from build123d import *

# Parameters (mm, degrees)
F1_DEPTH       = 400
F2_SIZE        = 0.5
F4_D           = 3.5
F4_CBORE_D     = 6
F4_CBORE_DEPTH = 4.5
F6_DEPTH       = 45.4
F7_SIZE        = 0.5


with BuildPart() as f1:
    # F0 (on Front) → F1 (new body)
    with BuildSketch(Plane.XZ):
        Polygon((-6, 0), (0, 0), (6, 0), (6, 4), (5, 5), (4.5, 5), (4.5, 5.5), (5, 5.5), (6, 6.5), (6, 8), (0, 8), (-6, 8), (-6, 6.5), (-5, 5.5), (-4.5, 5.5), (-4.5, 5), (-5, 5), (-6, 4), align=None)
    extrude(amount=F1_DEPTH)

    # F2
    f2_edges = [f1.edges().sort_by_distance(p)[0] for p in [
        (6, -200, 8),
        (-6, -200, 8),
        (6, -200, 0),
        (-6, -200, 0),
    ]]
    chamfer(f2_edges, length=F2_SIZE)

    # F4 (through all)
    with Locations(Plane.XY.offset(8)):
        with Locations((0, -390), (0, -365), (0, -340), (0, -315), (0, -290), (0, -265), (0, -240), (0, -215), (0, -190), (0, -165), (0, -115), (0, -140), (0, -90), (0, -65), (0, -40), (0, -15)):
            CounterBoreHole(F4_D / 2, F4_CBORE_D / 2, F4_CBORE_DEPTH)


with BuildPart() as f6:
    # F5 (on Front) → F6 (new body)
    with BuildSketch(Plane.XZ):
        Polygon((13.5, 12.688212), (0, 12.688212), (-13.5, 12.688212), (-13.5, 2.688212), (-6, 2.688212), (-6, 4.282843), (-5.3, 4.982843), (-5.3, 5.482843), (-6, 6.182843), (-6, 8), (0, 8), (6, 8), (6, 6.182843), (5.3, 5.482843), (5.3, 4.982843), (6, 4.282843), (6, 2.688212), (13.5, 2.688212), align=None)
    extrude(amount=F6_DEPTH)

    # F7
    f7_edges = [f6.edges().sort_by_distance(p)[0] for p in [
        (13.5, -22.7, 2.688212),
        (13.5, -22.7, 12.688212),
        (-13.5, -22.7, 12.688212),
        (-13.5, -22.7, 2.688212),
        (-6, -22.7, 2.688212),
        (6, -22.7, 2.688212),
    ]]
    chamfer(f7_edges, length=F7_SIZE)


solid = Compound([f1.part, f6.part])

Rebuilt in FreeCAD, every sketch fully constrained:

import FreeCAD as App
import Part
import Sketcher
Q = App.Units.Quantity


def edges_at(feature, points):
    """Names of the edges that pass closest to the given points."""
    edges = feature.Shape.Edges
    near = lambda p: min(range(len(edges)), key=lambda i: edges[i].distToShape(Part.Vertex(*p))[0])
    return sorted({f"Edge{near(p) + 1}" for p in points})


def add_polygon(sketch, points):
    """Adds a closed chain of lines whose ends are joined by coincident constraints."""
    first, n = sketch.GeometryCount, len(points)
    for a, b in zip(points, points[1:] + points[:1]):
        sketch.addGeometry(Part.LineSegment(App.Vector(*a, 0), App.Vector(*b, 0)), False)
    for i in range(n):
        sketch.addConstraint(Sketcher.Constraint("Coincident", first + i, 2, first + (i + 1) % n, 1))

doc = App.newDocument("Part")
body = doc.addObject("PartDesign::Body", "Body")

# Sketch on XZ plane
sketch1 = doc.addObject("Sketcher::SketchObject", "Sketch")
body.addObject(sketch1)
sketch1.AttachmentSupport = (doc.XZ_Plane, [""])
sketch1.MapMode = "FlatFace"
add_polygon(sketch1, [(-6, 0), (6, 0), (6, 4), (5, 5), (4.5, 5), (4.5, 5.5), (5, 5.5), (6, 6.5), (6, 8), (-6, 8), (-6, 6.5), (-5, 5.5), (-4.5, 5.5), (-4.5, 5), (-5, 5), (-6, 4)])  # lines 0-15
sketch1.addConstraint([
    Sketcher.Constraint("Horizontal", 0),
    Sketcher.Constraint("Vertical", 1),
    Sketcher.Constraint("Horizontal", 3),
    Sketcher.Constraint("Vertical", 4),
    Sketcher.Constraint("Horizontal", 5),
    Sketcher.Constraint("Vertical", 7),
    Sketcher.Constraint("Horizontal", 8),
    Sketcher.Constraint("Vertical", 9),
    Sketcher.Constraint("Horizontal", 11),
    Sketcher.Constraint("Vertical", 12),
    Sketcher.Constraint("Horizontal", 13),
    Sketcher.Constraint("Vertical", 15),
    Sketcher.Constraint("Symmetric", 0, 2, 15, 2, -1, 1),
    Sketcher.Constraint("Symmetric", 6, 2, 9, 2, -2),
    Sketcher.Constraint("Symmetric", 5, 2, 10, 2, -2),
    Sketcher.Constraint("Symmetric", 3, 2, 12, 2, -2),
    Sketcher.Constraint("Perpendicular", 2, 6),
    Sketcher.Constraint("Perpendicular", 6, 10),
    Sketcher.Constraint("Perpendicular", 10, 14),
    Sketcher.Constraint("Horizontal", 1, 2, 14, 2),
    Sketcher.Constraint("Vertical", 2, 2, 5, 2),
    Sketcher.Constraint("Vertical", 1, 2, 6, 2),
    Sketcher.Constraint("Equal", 13, 4),
    Sketcher.Constraint("DistanceX", 0, 1, 0, 2, Q("12 mm")),
    Sketcher.Constraint("DistanceY", 1, 1, 1, 2, Q("4 mm")),
    Sketcher.Constraint("DistanceX", 3, 2, 3, 1, Q("0.5 mm")),
    Sketcher.Constraint("DistanceY", 7, 1, 7, 2, Q("1.5 mm")),
    Sketcher.Constraint("DistanceX", -1, 1, 2, 2, Q("5 mm")),
])
pad1 = doc.addObject("PartDesign::Pad", "Pad")
body.addObject(pad1)
pad1.Profile = sketch1
pad1.Length = 400
doc.recompute()

chamfer = doc.addObject("PartDesign::Chamfer", "Chamfer")
body.addObject(chamfer)
chamfer.Base = (pad1, edges_at(pad1, [
    (6, -200, 8),
    (-6, -200, 8),
    (6, -200, 0),
    (-6, -200, 0),
]))
chamfer.Size = 0.5

# Sketch on XY plane
sketch2 = doc.addObject("Sketcher::SketchObject", "Sketch001")
body.addObject(sketch2)
sketch2.AttachmentSupport = (doc.XY_Plane, [""])
sketch2.MapMode = "FlatFace"
sketch2.AttachmentOffset = App.Placement(App.Vector(0, 0, 8), App.Rotation())
sketch2.addGeometry([
    Part.Circle(App.Vector(0, -390, 0), App.Vector(0, 0, 1), 1.75),  # 0
    Part.Circle(App.Vector(0, -365, 0), App.Vector(0, 0, 1), 1.75),  # 1
    Part.Circle(App.Vector(0, -340, 0), App.Vector(0, 0, 1), 1.75),  # 2
    Part.Circle(App.Vector(0, -315, 0), App.Vector(0, 0, 1), 1.75),  # 3
    Part.Circle(App.Vector(0, -290, 0), App.Vector(0, 0, 1), 1.75),  # 4
    Part.Circle(App.Vector(0, -265, 0), App.Vector(0, 0, 1), 1.75),  # 5
    Part.Circle(App.Vector(0, -240, 0), App.Vector(0, 0, 1), 1.75),  # 6
    Part.Circle(App.Vector(0, -215, 0), App.Vector(0, 0, 1), 1.75),  # 7
    Part.Circle(App.Vector(0, -190, 0), App.Vector(0, 0, 1), 1.75),  # 8
    Part.Circle(App.Vector(0, -165, 0), App.Vector(0, 0, 1), 1.75),  # 9
    Part.Circle(App.Vector(0, -115, 0), App.Vector(0, 0, 1), 1.75),  # 10
    Part.Circle(App.Vector(0, -140, 0), App.Vector(0, 0, 1), 1.75),  # 11
    Part.Circle(App.Vector(0, -90, 0), App.Vector(0, 0, 1), 1.75),  # 12
    Part.Circle(App.Vector(0, -65, 0), App.Vector(0, 0, 1), 1.75),  # 13
    Part.Circle(App.Vector(0, -40, 0), App.Vector(0, 0, 1), 1.75),  # 14
    Part.Circle(App.Vector(0, -15, 0), App.Vector(0, 0, 1), 1.75),  # 15
], False)
sketch2.addConstraint([
    Sketcher.Constraint("Equal", 0, 1),
    Sketcher.Constraint("Equal", 1, 2),
    Sketcher.Constraint("Equal", 2, 3),
    Sketcher.Constraint("Equal", 3, 4),
    Sketcher.Constraint("Equal", 4, 5),
    Sketcher.Constraint("Equal", 5, 6),
    Sketcher.Constraint("Equal", 6, 7),
    Sketcher.Constraint("Equal", 7, 8),
    Sketcher.Constraint("Equal", 8, 9),
    Sketcher.Constraint("Equal", 9, 10),
    Sketcher.Constraint("Equal", 10, 11),
    Sketcher.Constraint("Equal", 11, 12),
    Sketcher.Constraint("Equal", 12, 13),
    Sketcher.Constraint("Equal", 13, 14),
    Sketcher.Constraint("Equal", 14, 15),
    Sketcher.Constraint("PointOnObject", 0, 3, -2),
    Sketcher.Constraint("PointOnObject", 1, 3, -2),
    Sketcher.Constraint("PointOnObject", 2, 3, -2),
    Sketcher.Constraint("PointOnObject", 3, 3, -2),
    Sketcher.Constraint("PointOnObject", 4, 3, -2),
    Sketcher.Constraint("PointOnObject", 5, 3, -2),
    Sketcher.Constraint("PointOnObject", 6, 3, -2),
    Sketcher.Constraint("PointOnObject", 7, 3, -2),
    Sketcher.Constraint("PointOnObject", 8, 3, -2),
    Sketcher.Constraint("PointOnObject", 9, 3, -2),
    Sketcher.Constraint("PointOnObject", 10, 3, -2),
    Sketcher.Constraint("PointOnObject", 11, 3, -2),
    Sketcher.Constraint("PointOnObject", 12, 3, -2),
    Sketcher.Constraint("PointOnObject", 13, 3, -2),
    Sketcher.Constraint("PointOnObject", 14, 3, -2),
    Sketcher.Constraint("PointOnObject", 15, 3, -2),
    Sketcher.Constraint("Diameter", 0, Q("3.5 mm")),
    Sketcher.Constraint("DistanceY", 0, 3, -1, 1, Q("390 mm")),
    Sketcher.Constraint("DistanceY", 1, 3, -1, 1, Q("365 mm")),
    Sketcher.Constraint("DistanceY", 2, 3, -1, 1, Q("340 mm")),
    Sketcher.Constraint("DistanceY", 3, 3, -1, 1, Q("315 mm")),
    Sketcher.Constraint("DistanceY", 4, 3, -1, 1, Q("290 mm")),
    Sketcher.Constraint("DistanceY", 5, 3, -1, 1, Q("265 mm")),
    Sketcher.Constraint("DistanceY", 6, 3, -1, 1, Q("240 mm")),
    Sketcher.Constraint("DistanceY", 7, 3, -1, 1, Q("215 mm")),
    Sketcher.Constraint("DistanceY", 8, 3, -1, 1, Q("190 mm")),
    Sketcher.Constraint("DistanceY", 9, 3, -1, 1, Q("165 mm")),
    Sketcher.Constraint("DistanceY", 10, 3, -1, 1, Q("115 mm")),
    Sketcher.Constraint("DistanceY", 11, 3, -1, 1, Q("140 mm")),
    Sketcher.Constraint("DistanceY", 12, 3, -1, 1, Q("90 mm")),
    Sketcher.Constraint("DistanceY", 13, 3, -1, 1, Q("65 mm")),
    Sketcher.Constraint("DistanceY", 14, 3, -1, 1, Q("40 mm")),
    Sketcher.Constraint("DistanceY", 15, 3, -1, 1, Q("15 mm")),
])
doc.recompute()
hole = doc.addObject("PartDesign::Hole", "Hole")
body.addObject(hole)
hole.Profile = sketch2
hole.ThreadType = "None"
hole.Diameter = 3.5
hole.DepthType = "ThroughAll"
hole.HoleCutType = "Counterbore"
hole.HoleCutDiameter = 6
hole.HoleCutDepth = 4.5
body2 = doc.addObject("PartDesign::Body", "Body001")

# Sketch on XZ plane
sketch3 = doc.addObject("Sketcher::SketchObject", "Sketch002")
body2.addObject(sketch3)
sketch3.AttachmentSupport = (doc.getObject("XZ_Plane001"), [""])
sketch3.MapMode = "FlatFace"
add_polygon(sketch3, [(13.5, 12.688212), (-13.5, 12.688212), (-13.5, 2.688212), (-6, 2.688212), (-6, 4.282843), (-5.3, 4.982843), (-5.3, 5.482843), (-6, 6.182843), (-6, 8), (6, 8), (6, 6.182843), (5.3, 5.482843), (5.3, 4.982843), (6, 4.282843), (6, 2.688212), (13.5, 2.688212)])  # lines 0-15
sketch3.addConstraint([
    Sketcher.Constraint("Horizontal", 0),
    Sketcher.Constraint("Vertical", 1),
    Sketcher.Constraint("Horizontal", 2),
    Sketcher.Constraint("Vertical", 3),
    Sketcher.Constraint("Vertical", 5),
    Sketcher.Constraint("Vertical", 7),
    Sketcher.Constraint("Horizontal", 8),
    Sketcher.Constraint("Vertical", 9),
    Sketcher.Constraint("Vertical", 11),
    Sketcher.Constraint("Vertical", 13),
    Sketcher.Constraint("Horizontal", 14),
    Sketcher.Constraint("Vertical", 15),
    Sketcher.Constraint("Symmetric", 6, 2, 9, 2, -2),
    Sketcher.Constraint("Symmetric", 5, 2, 10, 2, -2),
    Sketcher.Constraint("Symmetric", 3, 2, 12, 2, -2),
    Sketcher.Constraint("Symmetric", 1, 2, 14, 2, -2),
    Sketcher.Constraint("Perpendicular", 4, 6),
    Sketcher.Constraint("Perpendicular", 6, 10),
    Sketcher.Constraint("Perpendicular", 10, 12),
    Sketcher.Constraint("Vertical", 3, 2, 6, 2),
    Sketcher.Constraint("DistanceX", 0, 2, 0, 1, Q("27 mm")),
    Sketcher.Constraint("DistanceX", 8, 1, 8, 2, Q("12 mm")),
    Sketcher.Constraint("DistanceY", 1, 2, 1, 1, Q("10 mm")),
    Sketcher.Constraint("DistanceY", 5, 1, 5, 2, Q("0.5 mm")),
    Sketcher.Constraint("DistanceY", -1, 1, 7, 2, Q("8 mm")),
    Sketcher.Constraint("DistanceX", 4, 2, -1, 1, Q("5.3 mm")),
    Sketcher.Constraint("DistanceY", 3, 1, 3, 2, Q("1.594631 mm")),
    Sketcher.Constraint("DistanceY", 7, 1, 7, 2, Q("1.817157 mm")),
])
pad2 = doc.addObject("PartDesign::Pad", "Pad001")
body2.addObject(pad2)
pad2.Profile = sketch3
pad2.Length = 45.4
doc.recompute()

chamfer2 = doc.addObject("PartDesign::Chamfer", "Chamfer001")
body2.addObject(chamfer2)
chamfer2.Base = (pad2, edges_at(pad2, [
    (13.5, -22.7, 2.688),
    (13.5, -22.7, 12.688),
    (-13.5, -22.7, 12.688),
    (-13.5, -22.7, 2.688),
    (-6, -22.7, 2.688),
    (6, -22.7, 2.688),
]))
chamfer2.Size = 0.5

doc.recompute()
